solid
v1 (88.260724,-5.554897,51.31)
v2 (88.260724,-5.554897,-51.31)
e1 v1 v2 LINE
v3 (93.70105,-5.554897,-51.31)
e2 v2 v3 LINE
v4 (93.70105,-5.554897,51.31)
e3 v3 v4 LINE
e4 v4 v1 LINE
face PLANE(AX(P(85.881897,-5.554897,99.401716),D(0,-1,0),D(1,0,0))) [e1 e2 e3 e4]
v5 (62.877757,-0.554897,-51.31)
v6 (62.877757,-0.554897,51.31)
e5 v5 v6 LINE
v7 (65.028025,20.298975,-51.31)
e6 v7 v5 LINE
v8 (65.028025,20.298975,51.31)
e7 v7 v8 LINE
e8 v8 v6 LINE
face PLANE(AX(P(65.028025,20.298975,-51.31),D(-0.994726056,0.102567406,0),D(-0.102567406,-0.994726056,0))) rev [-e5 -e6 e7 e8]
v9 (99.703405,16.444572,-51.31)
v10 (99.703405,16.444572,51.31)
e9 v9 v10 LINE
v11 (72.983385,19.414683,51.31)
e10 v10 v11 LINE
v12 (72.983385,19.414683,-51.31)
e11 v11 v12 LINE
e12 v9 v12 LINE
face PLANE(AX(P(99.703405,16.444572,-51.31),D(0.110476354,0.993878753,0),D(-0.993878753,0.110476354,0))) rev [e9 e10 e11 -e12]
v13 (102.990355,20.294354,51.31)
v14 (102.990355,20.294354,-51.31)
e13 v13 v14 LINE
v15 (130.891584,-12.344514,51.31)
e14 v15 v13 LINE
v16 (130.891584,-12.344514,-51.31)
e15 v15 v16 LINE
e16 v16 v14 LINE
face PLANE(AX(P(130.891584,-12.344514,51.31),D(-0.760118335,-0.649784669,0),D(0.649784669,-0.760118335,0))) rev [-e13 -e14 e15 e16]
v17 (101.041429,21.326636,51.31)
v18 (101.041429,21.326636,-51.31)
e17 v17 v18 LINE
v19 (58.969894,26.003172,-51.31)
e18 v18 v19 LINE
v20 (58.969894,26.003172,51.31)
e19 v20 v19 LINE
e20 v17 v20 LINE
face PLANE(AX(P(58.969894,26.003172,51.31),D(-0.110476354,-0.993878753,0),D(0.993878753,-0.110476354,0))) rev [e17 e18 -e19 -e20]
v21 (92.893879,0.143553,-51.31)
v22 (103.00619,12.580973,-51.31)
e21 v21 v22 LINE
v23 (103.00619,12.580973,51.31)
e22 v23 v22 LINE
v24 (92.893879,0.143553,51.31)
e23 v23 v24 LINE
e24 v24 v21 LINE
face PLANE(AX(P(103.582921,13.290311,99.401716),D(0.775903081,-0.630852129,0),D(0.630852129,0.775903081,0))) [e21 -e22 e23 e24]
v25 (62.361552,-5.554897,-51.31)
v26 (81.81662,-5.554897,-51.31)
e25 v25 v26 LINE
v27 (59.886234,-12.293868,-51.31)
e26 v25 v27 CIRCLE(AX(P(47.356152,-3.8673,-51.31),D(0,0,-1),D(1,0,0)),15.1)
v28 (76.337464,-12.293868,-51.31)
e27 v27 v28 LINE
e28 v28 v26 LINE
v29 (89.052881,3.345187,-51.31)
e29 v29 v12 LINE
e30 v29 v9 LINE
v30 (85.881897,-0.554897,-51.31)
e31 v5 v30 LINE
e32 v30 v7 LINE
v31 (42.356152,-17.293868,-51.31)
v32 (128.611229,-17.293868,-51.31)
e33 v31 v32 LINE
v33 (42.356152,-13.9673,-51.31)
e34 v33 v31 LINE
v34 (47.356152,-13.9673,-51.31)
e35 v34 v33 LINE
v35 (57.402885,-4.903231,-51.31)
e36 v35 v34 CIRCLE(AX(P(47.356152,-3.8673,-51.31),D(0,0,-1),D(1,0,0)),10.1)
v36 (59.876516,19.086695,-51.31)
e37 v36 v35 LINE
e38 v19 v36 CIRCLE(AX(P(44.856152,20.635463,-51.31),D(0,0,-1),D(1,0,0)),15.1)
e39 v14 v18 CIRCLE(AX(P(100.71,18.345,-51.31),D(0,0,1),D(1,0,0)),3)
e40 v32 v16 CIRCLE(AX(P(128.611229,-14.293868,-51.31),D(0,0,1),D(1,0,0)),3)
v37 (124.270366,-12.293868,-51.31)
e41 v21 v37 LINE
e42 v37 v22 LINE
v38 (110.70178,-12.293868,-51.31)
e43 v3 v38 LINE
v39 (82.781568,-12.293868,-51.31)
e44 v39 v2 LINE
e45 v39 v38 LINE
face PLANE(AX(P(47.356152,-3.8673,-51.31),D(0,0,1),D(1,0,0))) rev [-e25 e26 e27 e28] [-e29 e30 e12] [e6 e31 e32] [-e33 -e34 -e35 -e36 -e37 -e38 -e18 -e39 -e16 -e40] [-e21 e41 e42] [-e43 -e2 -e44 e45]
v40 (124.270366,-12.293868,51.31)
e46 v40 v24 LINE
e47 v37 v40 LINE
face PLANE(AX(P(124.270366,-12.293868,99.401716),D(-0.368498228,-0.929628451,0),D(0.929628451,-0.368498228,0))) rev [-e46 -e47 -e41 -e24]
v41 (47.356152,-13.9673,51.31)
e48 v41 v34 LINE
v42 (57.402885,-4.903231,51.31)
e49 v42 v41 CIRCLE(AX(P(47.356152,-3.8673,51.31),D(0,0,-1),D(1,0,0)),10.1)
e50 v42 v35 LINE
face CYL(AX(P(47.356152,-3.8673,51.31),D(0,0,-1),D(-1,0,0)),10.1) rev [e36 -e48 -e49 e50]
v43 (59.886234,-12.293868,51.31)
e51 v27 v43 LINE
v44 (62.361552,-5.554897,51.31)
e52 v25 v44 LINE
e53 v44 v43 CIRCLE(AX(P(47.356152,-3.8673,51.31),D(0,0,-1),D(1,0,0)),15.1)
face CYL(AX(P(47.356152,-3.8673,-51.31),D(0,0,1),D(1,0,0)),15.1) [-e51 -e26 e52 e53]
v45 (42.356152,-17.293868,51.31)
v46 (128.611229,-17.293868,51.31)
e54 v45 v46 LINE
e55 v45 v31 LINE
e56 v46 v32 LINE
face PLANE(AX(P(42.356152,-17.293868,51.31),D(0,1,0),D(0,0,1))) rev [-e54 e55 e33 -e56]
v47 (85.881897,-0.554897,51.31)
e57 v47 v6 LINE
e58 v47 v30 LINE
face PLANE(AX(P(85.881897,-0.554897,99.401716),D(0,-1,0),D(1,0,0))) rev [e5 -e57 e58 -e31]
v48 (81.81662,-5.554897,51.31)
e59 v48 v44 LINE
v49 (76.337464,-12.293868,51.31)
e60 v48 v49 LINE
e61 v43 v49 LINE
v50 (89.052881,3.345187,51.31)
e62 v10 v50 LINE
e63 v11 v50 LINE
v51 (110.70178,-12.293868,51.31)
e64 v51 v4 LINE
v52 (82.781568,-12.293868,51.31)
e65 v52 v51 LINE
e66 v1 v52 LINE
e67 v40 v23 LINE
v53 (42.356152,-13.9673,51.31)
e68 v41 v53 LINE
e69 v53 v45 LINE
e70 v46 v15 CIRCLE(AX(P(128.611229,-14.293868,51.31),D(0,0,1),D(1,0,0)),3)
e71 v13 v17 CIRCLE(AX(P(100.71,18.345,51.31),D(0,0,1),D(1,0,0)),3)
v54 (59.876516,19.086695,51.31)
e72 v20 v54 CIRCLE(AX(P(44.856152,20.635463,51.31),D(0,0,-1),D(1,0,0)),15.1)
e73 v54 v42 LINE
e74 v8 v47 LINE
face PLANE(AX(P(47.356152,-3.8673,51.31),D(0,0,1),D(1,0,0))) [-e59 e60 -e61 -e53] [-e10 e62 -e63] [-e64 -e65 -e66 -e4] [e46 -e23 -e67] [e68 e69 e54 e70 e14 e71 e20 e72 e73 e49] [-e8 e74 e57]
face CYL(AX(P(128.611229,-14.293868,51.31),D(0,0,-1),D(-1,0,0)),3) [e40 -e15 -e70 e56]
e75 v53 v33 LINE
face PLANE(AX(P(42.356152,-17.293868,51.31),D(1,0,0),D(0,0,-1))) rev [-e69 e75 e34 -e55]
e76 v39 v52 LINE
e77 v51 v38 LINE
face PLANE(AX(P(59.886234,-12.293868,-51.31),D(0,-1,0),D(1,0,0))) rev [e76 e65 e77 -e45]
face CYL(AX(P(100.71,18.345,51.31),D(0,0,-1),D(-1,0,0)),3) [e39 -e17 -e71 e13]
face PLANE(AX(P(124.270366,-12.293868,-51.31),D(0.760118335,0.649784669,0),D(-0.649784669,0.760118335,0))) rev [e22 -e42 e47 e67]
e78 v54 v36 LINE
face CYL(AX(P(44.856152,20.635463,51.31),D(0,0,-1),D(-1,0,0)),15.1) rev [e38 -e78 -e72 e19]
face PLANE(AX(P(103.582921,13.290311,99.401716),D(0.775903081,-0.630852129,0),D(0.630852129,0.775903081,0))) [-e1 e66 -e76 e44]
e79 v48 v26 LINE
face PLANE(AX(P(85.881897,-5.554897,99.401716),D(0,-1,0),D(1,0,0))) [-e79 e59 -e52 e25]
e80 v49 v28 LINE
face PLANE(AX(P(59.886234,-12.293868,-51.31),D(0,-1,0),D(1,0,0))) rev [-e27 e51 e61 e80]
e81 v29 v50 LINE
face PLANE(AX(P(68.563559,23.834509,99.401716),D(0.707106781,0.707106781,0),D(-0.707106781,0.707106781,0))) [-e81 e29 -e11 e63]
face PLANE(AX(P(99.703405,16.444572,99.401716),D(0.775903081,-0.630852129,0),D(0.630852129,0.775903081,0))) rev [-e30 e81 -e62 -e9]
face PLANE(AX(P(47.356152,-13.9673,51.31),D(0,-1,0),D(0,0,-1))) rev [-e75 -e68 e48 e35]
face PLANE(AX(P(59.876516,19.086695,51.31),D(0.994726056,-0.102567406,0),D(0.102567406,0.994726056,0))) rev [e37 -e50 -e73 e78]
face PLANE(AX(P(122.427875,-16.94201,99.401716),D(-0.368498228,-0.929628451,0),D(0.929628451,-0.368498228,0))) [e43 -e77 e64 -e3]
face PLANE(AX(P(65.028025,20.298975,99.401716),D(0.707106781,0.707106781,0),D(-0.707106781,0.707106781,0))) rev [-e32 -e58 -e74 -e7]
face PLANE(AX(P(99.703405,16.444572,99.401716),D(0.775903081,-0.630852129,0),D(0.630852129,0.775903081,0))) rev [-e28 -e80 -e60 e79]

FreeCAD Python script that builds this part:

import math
import FreeCAD as App
import Part
import Sketcher
from FreeCAD import Vector

doc = App.newDocument("Part")
body = doc.addObject("PartDesign::Body", "Body")

# Sketch on XY plane
sketch1 = body.newObject("Sketcher::SketchObject", "Sketch")
sketch1.AttachmentSupport = (doc.getObject("XY_Plane"), [""])
sketch1.MapMode = "FlatFace"
sketch1.addGeometry(Part.LineSegment(Vector(59.9, 19.1, 0), Vector(57.4, -4.9, 0)), False)
sketch1.addGeometry(Part.ArcOfCircle(Part.Circle(Vector(47.4, -3.9, 0), Vector(0, 0, 1), 10.1), math.radians(-90), math.radians(-6)), False)
sketch1.addGeometry(Part.LineSegment(Vector(47.4, -14, 0), Vector(42.4, -14, 0)), False)
sketch1.addGeometry(Part.LineSegment(Vector(42.4, -14, 0), Vector(42.4, -17.3, 0)), False)
sketch1.addGeometry(Part.LineSegment(Vector(42.4, -17.3, 0), Vector(128.6, -17.3, 0)), False)
sketch1.addGeometry(Part.ArcOfCircle(Part.Circle(Vector(128.6, -14.3, 0), Vector(0, 0, 1), 3), math.radians(-90), math.radians(41)), False)
sketch1.addGeometry(Part.LineSegment(Vector(130.9, -12.3, 0), Vector(103, 20.3, 0)), False)
sketch1.addGeometry(Part.ArcOfCircle(Part.Circle(Vector(100.7, 18.3, 0), Vector(0, 0, 1), 3), math.radians(41), math.radians(84)), False)
sketch1.addGeometry(Part.LineSegment(Vector(101, 21.3, 0), Vector(59, 26, 0)), False)
sketch1.addGeometry(Part.ArcOfCircle(Part.Circle(Vector(44.9, 20.6, 0), Vector(0, 0, 1), 15.1), math.radians(-6), math.radians(21)), False)
sketch1.addConstraint(Sketcher.Constraint("Tangent", 0, 2, 1, 2))
sketch1.addConstraint(Sketcher.Constraint("Tangent", 1, 1, 2, 1))
sketch1.addConstraint(Sketcher.Constraint("Coincident", 2, 2, 3, 1))
sketch1.addConstraint(Sketcher.Constraint("Coincident", 3, 2, 4, 1))
sketch1.addConstraint(Sketcher.Constraint("Tangent", 4, 2, 5, 1))
sketch1.addConstraint(Sketcher.Constraint("Tangent", 5, 2, 6, 1))
sketch1.addConstraint(Sketcher.Constraint("Tangent", 6, 2, 7, 1))
sketch1.addConstraint(Sketcher.Constraint("Tangent", 7, 2, 8, 1))
sketch1.addConstraint(Sketcher.Constraint("Coincident", 8, 2, 9, 2))
sketch1.addConstraint(Sketcher.Constraint("Tangent", 9, 1, 0, 1))
sketch1.addConstraint(Sketcher.Constraint("Horizontal", 2))
sketch1.addConstraint(Sketcher.Constraint("Vertical", 3))
sketch1.addConstraint(Sketcher.Constraint("Horizontal", 4))
sketch1.addConstraint(Sketcher.Constraint("Equal", 5, 7))
sketch1.addConstraint(Sketcher.Constraint("Radius", 5, 3.0))
sketch1.addConstraint(Sketcher.Constraint("Radius", 1, 10.1))
sketch1.addConstraint(Sketcher.Constraint("Radius", 9, 15.1))
sketch1.addConstraint(Sketcher.Constraint("DistanceX", 2, 2, 2, 1, 5.0))
sketch1.addConstraint(Sketcher.Constraint("DistanceX", 9, 3, 1, 3, 2.5))
sketch1.addConstraint(Sketcher.Constraint("DistanceX", -1, 1, 7, 3, 100.71))
sketch1.addConstraint(Sketcher.Constraint("DistanceY", -1, 1, 7, 3, 18.345))
sketch1.addConstraint(Sketcher.Constraint("DistanceY", 1, 3, -1, 1, 3.8673))
sketch1.addConstraint(Sketcher.Constraint("DistanceX", 0, 2, 5, 2, 73.488699))
sketch1.addConstraint(Sketcher.Constraint("DistanceX", 7, 2, 5, 3, 27.5698))
sketch1.addConstraint(Sketcher.Constraint("Distance", 0, 24.117118))
sketch1.addConstraint(Sketcher.Constraint("Distance", 8, 42.330652))
sketch1.addConstraint(Sketcher.Constraint("DistanceX", 4, 1, 4, 2, 86.255077))
pad1 = body.newObject("PartDesign::Pad", "Pad")
pad1.Profile = sketch1
pad1.Length = 102.62
pad1.Midplane = True

# Sketch on XY plane
sketch2 = body.newObject("Sketcher::SketchObject", "Sketch001")
sketch2.AttachmentSupport = (doc.getObject("XY_Plane"), [""])
sketch2.MapMode = "FlatFace"
sketch2.AttachmentOffset = App.Placement(Vector(0, 0, 51.31), App.Rotation())
sketch2.addGeometry(Part.LineSegment(Vector(65, 20, 0), Vector(62, -5, 0)), False)
sketch2.addGeometry(Part.ArcOfCircle(Part.Circle(Vector(47, -4, 0), Vector(0, 0, 1), 15), math.radians(-34), math.radians(-6)), False)
sketch2.addGeometry(Part.LineSegment(Vector(60, -12, 0), Vector(124, -12, 0)), False)
sketch2.addGeometry(Part.LineSegment(Vector(124, -12, 0), Vector(100, 16, 0)), False)
sketch2.addGeometry(Part.LineSegment(Vector(100, 16, 0), Vector(65, 20, 0)), False)
sketch2.addConstraint(Sketcher.Constraint("Tangent", 0, 2, 1, 2))
sketch2.addConstraint(Sketcher.Constraint("Coincident", 1, 1, 2, 1))
sketch2.addConstraint(Sketcher.Constraint("Coincident", 2, 2, 3, 1))
sketch2.addConstraint(Sketcher.Constraint("Coincident", 3, 2, 4, 1))
sketch2.addConstraint(Sketcher.Constraint("Coincident", 4, 2, 0, 1))
sketch2.addConstraint(Sketcher.Constraint("Horizontal", 2))
sketch2.addConstraint(Sketcher.Constraint("Radius", 1, 15.1))
sketch2.addConstraint(Sketcher.Constraint("DistanceY", 1, 3, -1, 1, 3.8673))
sketch2.addConstraint(Sketcher.Constraint("DistanceY", 1, 1, 0, 2, 6.8778))
sketch2.addConstraint(Sketcher.Constraint("Distance", 0, 25.851382))
sketch2.addConstraint(Sketcher.Constraint("Distance", 3, 37.807849))
sketch2.addConstraint(Sketcher.Constraint("DistanceX", 2, 1, 2, 2, 64.384132))
sketch2.addConstraint(Sketcher.Constraint("DistanceY", -1, 1, 3, 2, 16.444572))
sketch2.addConstraint(Sketcher.Constraint("DistanceX", 1, 1, 0, 2, 2.490281))
sketch2.addConstraint(Sketcher.Constraint("DistanceX", -1, 1, 1, 3, 47.356152))
pocket1 = body.newObject("PartDesign::Pocket", "Pocket")
pocket1.Profile = sketch2
pocket1.Type = "ThroughAll"

# Sketch on XY plane
sketch3 = body.newObject("Sketcher::SketchObject", "Sketch002")
sketch3.AttachmentSupport = (doc.getObject("XY_Plane"), [""])
sketch3.MapMode = "FlatFace"
sketch3.AttachmentOffset = App.Placement(Vector(0, 0, -51.31), App.Rotation())
sketch3.addGeometry(Part.LineSegment(Vector(92.893879, 0.143553, 0), Vector(103.582921, 13.290311, 0)), False)
sketch3.addGeometry(Part.LineSegment(Vector(103.582921, 13.290311, 0), Vector(99.703405, 16.444572, 0)), False)
sketch3.addGeometry(Part.LineSegment(Vector(99.703405, 16.444572, 0), Vector(89.052881, 3.345187, 0)), False)
sketch3.addGeometry(Part.LineSegment(Vector(89.052881, 3.345187, 0), Vector(68.563559, 23.834509, 0)), False)
sketch3.addGeometry(Part.LineSegment(Vector(68.563559, 23.834509, 0), Vector(65.028025, 20.298975, 0)), False)
sketch3.addGeometry(Part.LineSegment(Vector(65.028025, 20.298975, 0), Vector(85.881897, -0.554897, 0)), False)
sketch3.addGeometry(Part.LineSegment(Vector(85.881897, -0.554897, 0), Vector(59.886234, -0.554897, 0)), False)
sketch3.addGeometry(Part.LineSegment(Vector(59.886234, -0.554897, 0), Vector(59.886234, -5.554897, 0)), False)
sketch3.addGeometry(Part.LineSegment(Vector(59.886234, -5.554897, 0), Vector(81.81662, -5.554897, 0)), False)
sketch3.addGeometry(Part.LineSegment(Vector(81.81662, -5.554897, 0), Vector(76.337464, -12.293868, 0)), False)
sketch3.addGeometry(Part.LineSegment(Vector(76.337464, -12.293868, 0), Vector(80.21698, -15.448128, 0)), False)
sketch3.addGeometry(Part.LineSegment(Vector(80.21698, -15.448128, 0), Vector(88.260724, -5.554897, 0)), False)
sketch3.addGeometry(Part.LineSegment(Vector(88.260724, -5.554897, 0), Vector(93.70105, -5.554897, 0)), False)
sketch3.addGeometry(Part.LineSegment(Vector(93.70105, -5.554897, 0), Vector(122.427875, -16.94201, 0)), False)
sketch3.addGeometry(Part.LineSegment(Vector(122.427875, -16.94201, 0), Vector(124.270366, -12.293868, 0)), False)
sketch3.addGeometry(Part.LineSegment(Vector(124.270366, -12.293868, 0), Vector(92.893879, 0.143553, 0)), False)
sketch3.addConstraint(Sketcher.Constraint("Coincident", 0, 2, 1, 1))
sketch3.addConstraint(Sketcher.Constraint("Coincident", 1, 2, 2, 1))
sketch3.addConstraint(Sketcher.Constraint("Coincident", 2, 2, 3, 1))
sketch3.addConstraint(Sketcher.Constraint("Coincident", 3, 2, 4, 1))
sketch3.addConstraint(Sketcher.Constraint("Coincident", 4, 2, 5, 1))
sketch3.addConstraint(Sketcher.Constraint("Coincident", 5, 2, 6, 1))
sketch3.addConstraint(Sketcher.Constraint("Coincident", 6, 2, 7, 1))
sketch3.addConstraint(Sketcher.Constraint("Coincident", 7, 2, 8, 1))
sketch3.addConstraint(Sketcher.Constraint("Coincident", 8, 2, 9, 1))
sketch3.addConstraint(Sketcher.Constraint("Coincident", 9, 2, 10, 1))
sketch3.addConstraint(Sketcher.Constraint("Coincident", 10, 2, 11, 1))
sketch3.addConstraint(Sketcher.Constraint("Coincident", 11, 2, 12, 1))
sketch3.addConstraint(Sketcher.Constraint("Coincident", 12, 2, 13, 1))
sketch3.addConstraint(Sketcher.Constraint("Coincident", 13, 2, 14, 1))
sketch3.addConstraint(Sketcher.Constraint("Coincident", 14, 2, 15, 1))
sketch3.addConstraint(Sketcher.Constraint("Coincident", 15, 2, 0, 1))
sketch3.addConstraint(Sketcher.Constraint("Horizontal", 6))
sketch3.addConstraint(Sketcher.Constraint("Vertical", 7))
sketch3.addConstraint(Sketcher.Constraint("Horizontal", 8))
sketch3.addConstraint(Sketcher.Constraint("Horizontal", 12))
sketch3.addConstraint(Sketcher.Constraint("DistanceY", 7, 2, 7, 1, 5.0))
sketch3.addConstraint(Sketcher.Constraint("Distance", 1, 5.0))
sketch3.addConstraint(Sketcher.Constraint("Distance", 4, 5.0))
sketch3.addConstraint(Sketcher.Constraint("Distance", 10, 5.0))
sketch3.addConstraint(Sketcher.Constraint("Distance", 14, 5.0))
sketch3.addConstraint(Sketcher.Constraint("DistanceY", 11, 2, 5, 2, 5.0))
sketch3.addConstraint(Sketcher.Constraint("DistanceX", 2, 2, 15, 2, 3.840998))
sketch3.addConstraint(Sketcher.Constraint("DistanceX", 10, 2, 2, 2, 8.835901))
sketch3.addConstraint(Sketcher.Constraint("Distance", 2, 16.882759))
sketch3.addConstraint(Sketcher.Constraint("Distance", 5, 29.491829))
sketch3.addConstraint(Sketcher.Constraint("DistanceX", 6, 2, 6, 1, 25.995663))
sketch3.addConstraint(Sketcher.Constraint("DistanceX", 8, 1, 8, 2, 21.930386))
sketch3.addConstraint(Sketcher.Constraint("DistanceX", 12, 1, 12, 2, 5.440325))
sketch3.addConstraint(Sketcher.Constraint("DistanceX", -1, 1, 0, 2, 103.582921))
sketch3.addConstraint(Sketcher.Constraint("DistanceY", -1, 1, 0, 2, 13.290311))
sketch3.addConstraint(Sketcher.Constraint("DistanceY", -1, 1, 1, 2, 16.444572))
sketch3.addConstraint(Sketcher.Constraint("DistanceX", -1, 1, 2, 2, 89.052881))
sketch3.addConstraint(Sketcher.Constraint("DistanceX", -1, 1, 3, 2, 68.563559))
sketch3.addConstraint(Sketcher.Constraint("DistanceY", -1, 1, 3, 2, 23.834509))
sketch3.addConstraint(Sketcher.Constraint("DistanceX", -1, 1, 8, 2, 81.81662))
sketch3.addConstraint(Sketcher.Constraint("DistanceY", 10, 2, -1, 1, 15.448128))
sketch3.addConstraint(Sketcher.Constraint("DistanceX", -1, 1, 12, 2, 93.70105))
sketch3.addConstraint(Sketcher.Constraint("DistanceY", 13, 2, -1, 1, 16.94201))
sketch3.addConstraint(Sketcher.Constraint("DistanceY", 2, 2, 4, 2, 16.953788))
sketch3.addConstraint(Sketcher.Constraint("DistanceY", 9, 2, 8, 2, 6.738971))
sketch3.addConstraint(Sketcher.Constraint("DistanceX", 11, 2, 13, 2, 34.167151))
sketch3.addConstraint(Sketcher.Constraint("DistanceX", 13, 2, 14, 2, 1.842491))
sketch3.addConstraint(Sketcher.Constraint("DistanceY", 12, 2, 15, 2, 5.69845))
pad2 = body.newObject("PartDesign::Pad", "Pad001")
pad2.Profile = sketch3
pad2.Length = 102.62

doc.recompute()
